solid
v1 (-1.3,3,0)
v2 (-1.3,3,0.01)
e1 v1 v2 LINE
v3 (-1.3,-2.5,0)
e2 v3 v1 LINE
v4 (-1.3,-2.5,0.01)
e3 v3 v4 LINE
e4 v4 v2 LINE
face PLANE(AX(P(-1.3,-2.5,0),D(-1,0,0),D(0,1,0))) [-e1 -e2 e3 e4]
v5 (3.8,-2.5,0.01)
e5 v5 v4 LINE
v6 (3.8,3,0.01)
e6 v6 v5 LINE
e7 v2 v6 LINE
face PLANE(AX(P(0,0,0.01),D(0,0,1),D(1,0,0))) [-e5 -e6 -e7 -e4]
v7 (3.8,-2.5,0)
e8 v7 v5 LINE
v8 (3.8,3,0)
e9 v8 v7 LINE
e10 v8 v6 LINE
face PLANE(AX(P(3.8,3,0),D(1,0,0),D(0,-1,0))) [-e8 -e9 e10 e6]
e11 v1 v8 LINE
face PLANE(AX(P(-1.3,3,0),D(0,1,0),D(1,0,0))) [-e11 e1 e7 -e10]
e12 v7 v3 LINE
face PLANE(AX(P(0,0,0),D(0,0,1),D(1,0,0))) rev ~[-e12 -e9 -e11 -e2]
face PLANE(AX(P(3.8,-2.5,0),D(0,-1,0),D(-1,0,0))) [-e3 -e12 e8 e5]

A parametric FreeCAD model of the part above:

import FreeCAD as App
import Part
import Sketcher

V = App.Vector

doc = App.newDocument("Part")
params = doc.addObject("Spreadsheet::Sheet", "Params")
for row, (alias, value) in enumerate([
    ("sketch1_width", "5.1 mm"),
    ("sketch1_height", "5.5 mm"),
    ("pad1_length", "0.01 mm"),
], start=1):
    params.set(f"A{row}", alias)
    params.set(f"B{row}", "=" + value)
    params.setAlias(f"B{row}", alias)

body = doc.addObject("PartDesign::Body", "Body")

# Sketch on XY plane
sketch1 = doc.addObject("Sketcher::SketchObject", "Sketch")
body.addObject(sketch1)
sketch1.AttachmentSupport = (doc.XY_Plane, [""])
sketch1.MapMode = "FlatFace"
sketch1.addGeometry([
    Part.LineSegment(V(-1, 3, 0), V(-1, -2, 0)),
    Part.LineSegment(V(-1, -2, 0), V(4, -2, 0)),
    Part.LineSegment(V(4, -2, 0), V(4, 3, 0)),
    Part.LineSegment(V(4, 3, 0), V(-1, 3, 0)),
], False)
sketch1.addConstraint([
    Sketcher.Constraint("Coincident", 0, 2, 1, 1),
    Sketcher.Constraint("Coincident", 1, 2, 2, 1),
    Sketcher.Constraint("Coincident", 2, 2, 3, 1),
    Sketcher.Constraint("Coincident", 3, 2, 0, 1),
    Sketcher.Constraint("Vertical", 0),
    Sketcher.Constraint("Horizontal", 1),
    Sketcher.Constraint("Vertical", 2),
    Sketcher.Constraint("Horizontal", 3),
    Sketcher.Constraint("DistanceX", 1, 1, 1, 2, 5.1),
    Sketcher.Constraint("DistanceY", 0, 2, 0, 1, 5.5),
    Sketcher.Constraint("DistanceY", -1, 1, 2, 2, 3.0),
    Sketcher.Constraint("DistanceX", 0, 2, -1, 1, 1.3),
])
sketch1.setExpression("Constraints[8]", "Params.sketch1_width")
sketch1.setExpression("Constraints[9]", "Params.sketch1_height")
pad1 = doc.addObject("PartDesign::Pad", "Pad")
body.addObject(pad1)
pad1.Profile = sketch1
pad1.setExpression("Length", "Params.pad1_length")

doc.recompute()
